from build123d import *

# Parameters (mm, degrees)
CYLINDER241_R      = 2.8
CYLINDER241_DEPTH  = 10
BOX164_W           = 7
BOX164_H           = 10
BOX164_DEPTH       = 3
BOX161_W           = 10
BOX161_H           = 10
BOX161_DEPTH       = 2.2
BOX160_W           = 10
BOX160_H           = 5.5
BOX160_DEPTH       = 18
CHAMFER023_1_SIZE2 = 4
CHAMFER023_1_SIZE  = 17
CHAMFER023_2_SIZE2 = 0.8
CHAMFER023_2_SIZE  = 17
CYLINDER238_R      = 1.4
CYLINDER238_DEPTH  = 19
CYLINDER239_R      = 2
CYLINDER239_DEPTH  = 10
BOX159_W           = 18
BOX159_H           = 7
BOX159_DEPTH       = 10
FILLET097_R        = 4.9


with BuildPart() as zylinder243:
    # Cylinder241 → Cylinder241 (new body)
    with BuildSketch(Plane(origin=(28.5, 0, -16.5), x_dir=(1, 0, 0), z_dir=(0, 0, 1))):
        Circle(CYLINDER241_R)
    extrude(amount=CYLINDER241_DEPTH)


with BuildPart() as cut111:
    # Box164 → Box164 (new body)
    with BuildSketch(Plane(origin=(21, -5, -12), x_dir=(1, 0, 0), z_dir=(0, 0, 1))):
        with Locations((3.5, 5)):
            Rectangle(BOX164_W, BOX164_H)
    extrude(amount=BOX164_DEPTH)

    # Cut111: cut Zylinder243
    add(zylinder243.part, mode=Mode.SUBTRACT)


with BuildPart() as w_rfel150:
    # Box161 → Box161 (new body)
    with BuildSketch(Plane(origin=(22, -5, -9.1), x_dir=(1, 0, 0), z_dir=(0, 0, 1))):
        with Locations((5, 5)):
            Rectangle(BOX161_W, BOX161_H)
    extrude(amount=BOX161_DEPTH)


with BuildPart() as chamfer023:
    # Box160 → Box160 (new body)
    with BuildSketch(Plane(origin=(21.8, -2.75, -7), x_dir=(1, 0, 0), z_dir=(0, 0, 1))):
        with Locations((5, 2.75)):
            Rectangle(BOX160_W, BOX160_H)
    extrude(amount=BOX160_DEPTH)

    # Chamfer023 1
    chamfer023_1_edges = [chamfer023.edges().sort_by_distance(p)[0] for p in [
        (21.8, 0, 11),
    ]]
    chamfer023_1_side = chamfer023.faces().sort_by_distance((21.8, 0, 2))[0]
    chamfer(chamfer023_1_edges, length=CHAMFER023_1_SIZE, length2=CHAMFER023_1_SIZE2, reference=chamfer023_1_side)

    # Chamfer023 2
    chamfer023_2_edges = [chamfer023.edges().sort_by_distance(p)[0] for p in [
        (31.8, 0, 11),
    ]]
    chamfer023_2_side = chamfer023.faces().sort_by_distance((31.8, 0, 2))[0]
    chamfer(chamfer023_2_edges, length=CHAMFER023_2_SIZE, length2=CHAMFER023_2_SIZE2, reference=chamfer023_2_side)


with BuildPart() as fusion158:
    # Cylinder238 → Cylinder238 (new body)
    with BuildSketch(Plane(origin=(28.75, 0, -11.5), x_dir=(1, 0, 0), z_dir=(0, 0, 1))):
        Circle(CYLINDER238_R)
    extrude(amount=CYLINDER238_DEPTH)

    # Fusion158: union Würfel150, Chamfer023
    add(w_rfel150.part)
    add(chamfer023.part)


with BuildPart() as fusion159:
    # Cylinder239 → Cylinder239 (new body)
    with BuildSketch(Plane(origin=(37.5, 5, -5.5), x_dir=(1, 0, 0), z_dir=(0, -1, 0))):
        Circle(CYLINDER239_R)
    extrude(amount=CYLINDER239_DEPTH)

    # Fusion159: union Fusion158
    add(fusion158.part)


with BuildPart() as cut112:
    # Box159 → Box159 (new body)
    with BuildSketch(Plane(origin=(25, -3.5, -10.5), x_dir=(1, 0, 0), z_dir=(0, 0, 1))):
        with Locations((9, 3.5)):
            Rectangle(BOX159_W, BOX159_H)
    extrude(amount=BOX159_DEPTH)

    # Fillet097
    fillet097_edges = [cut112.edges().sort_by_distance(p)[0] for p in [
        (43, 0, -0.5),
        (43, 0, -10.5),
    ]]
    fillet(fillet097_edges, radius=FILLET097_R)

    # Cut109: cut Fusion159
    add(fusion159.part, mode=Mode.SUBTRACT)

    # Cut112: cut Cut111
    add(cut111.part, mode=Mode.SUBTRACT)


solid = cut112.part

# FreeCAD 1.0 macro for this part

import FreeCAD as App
import Part
import Sketcher
from FreeCAD import Vector


def edges_at(feature, points):
    """Names of the edges that pass closest to the given points."""
    edges = feature.Shape.Edges
    near = lambda p: min(range(len(edges)), key=lambda i: edges[i].distToShape(Part.Vertex(*p))[0])
    return sorted({f"Edge{near(p) + 1}" for p in points})


def add_polygon(sketch, points):
    """Adds a closed chain of lines whose ends are joined by coincident constraints."""
    first, n = sketch.GeometryCount, len(points)
    for a, b in zip(points, points[1:] + points[:1]):
        sketch.addGeometry(Part.LineSegment(App.Vector(*a, 0), App.Vector(*b, 0)), False)
    for i in range(n):
        sketch.addConstraint(Sketcher.Constraint("Coincident", first + i, 2, first + (i + 1) % n, 1))

doc = App.newDocument("Part")
body = doc.addObject("PartDesign::Body", "Body")

# Sketch on XY plane
sketch1 = doc.addObject("Sketcher::SketchObject", "Sketch")
body.addObject(sketch1)
sketch1.AttachmentSupport = (doc.XY_Plane, [""])
sketch1.MapMode = "FlatFace"
sketch1.AttachmentOffset = App.Placement(Vector(0, 0, -16.5), App.Rotation())
sketch1.addGeometry(Part.Circle(Vector(28.5, 0, 0), Vector(0, 0, 1), 2.8), False)
sketch1.addConstraint(Sketcher.Constraint("PointOnObject", 0, 3, -1))
sketch1.addConstraint(Sketcher.Constraint("Diameter", 0, 5.6))
sketch1.addConstraint(Sketcher.Constraint("DistanceX", -1, 1, 0, 3, 28.5))
pad1 = doc.addObject("PartDesign::Pad", "Pad")
body.addObject(pad1)
pad1.Profile = sketch1
pad1.Length = 10
body2 = doc.addObject("PartDesign::Body", "Body001")

# Sketch on XY plane
sketch2 = doc.addObject("Sketcher::SketchObject", "Sketch001")
body2.addObject(sketch2)
sketch2.AttachmentSupport = (doc.getObject("XY_Plane001"), [""])
sketch2.MapMode = "FlatFace"
sketch2.AttachmentOffset = App.Placement(Vector(0, 0, -12), App.Rotation())
add_polygon(sketch2, [(21, 5), (21, -5), (28, -5), (28, 5)])  # lines 0-3
sketch2.addConstraint(Sketcher.Constraint("Vertical", 0))
sketch2.addConstraint(Sketcher.Constraint("Horizontal", 1))
sketch2.addConstraint(Sketcher.Constraint("Vertical", 2))
sketch2.addConstraint(Sketcher.Constraint("Horizontal", 3))
sketch2.addConstraint(Sketcher.Constraint("DistanceX", 1, 1, 1, 2, 7.0))
sketch2.addConstraint(Sketcher.Constraint("DistanceY", 0, 2, 0, 1, 10.0))
sketch2.addConstraint(Sketcher.Constraint("DistanceX", -1, 1, 0, 2, 21.0))
sketch2.addConstraint(Sketcher.Constraint("DistanceY", 0, 2, -1, 1, 5.0))
pad2 = doc.addObject("PartDesign::Pad", "Pad001")
body2.addObject(pad2)
pad2.Profile = sketch2
pad2.Length = 3
doc.recompute()

boolean = doc.addObject("PartDesign::Boolean", "Boolean")
body2.addObject(boolean)
boolean.Type = "Cut"
boolean.addObjects([body])
body3 = doc.addObject("PartDesign::Body", "Body002")

# Sketch on XY plane
sketch3 = doc.addObject("Sketcher::SketchObject", "Sketch002")
body3.addObject(sketch3)
sketch3.AttachmentSupport = (doc.getObject("XY_Plane002"), [""])
sketch3.MapMode = "FlatFace"
sketch3.AttachmentOffset = App.Placement(Vector(0, 0, -9.1), App.Rotation())
add_polygon(sketch3, [(22, 5), (22, -5), (32, -5), (32, 5)])  # lines 0-3
sketch3.addConstraint(Sketcher.Constraint("Vertical", 0))
sketch3.addConstraint(Sketcher.Constraint("Horizontal", 1))
sketch3.addConstraint(Sketcher.Constraint("Vertical", 2))
sketch3.addConstraint(Sketcher.Constraint("Horizontal", 3))
sketch3.addConstraint(Sketcher.Constraint("Equal", 3, 0))
sketch3.addConstraint(Sketcher.Constraint("DistanceX", 1, 1, 1, 2, 10.0))
sketch3.addConstraint(Sketcher.Constraint("DistanceX", -1, 1, 0, 2, 22.0))
sketch3.addConstraint(Sketcher.Constraint("DistanceY", 0, 2, -1, 1, 5.0))
pad3 = doc.addObject("PartDesign::Pad", "Pad002")
body3.addObject(pad3)
pad3.Profile = sketch3
pad3.Length = 2.2
body4 = doc.addObject("PartDesign::Body", "Body003")

# Sketch on XY plane
sketch4 = doc.addObject("Sketcher::SketchObject", "Sketch003")
body4.addObject(sketch4)
sketch4.AttachmentSupport = (doc.getObject("XY_Plane003"), [""])
sketch4.MapMode = "FlatFace"
sketch4.AttachmentOffset = App.Placement(Vector(0, 0, -7), App.Rotation())
add_polygon(sketch4, [(21.8, 2.75), (21.8, -2.75), (31.8, -2.75), (31.8, 2.75)])  # lines 0-3
sketch4.addConstraint(Sketcher.Constraint("Vertical", 0))
sketch4.addConstraint(Sketcher.Constraint("Horizontal", 1))
sketch4.addConstraint(Sketcher.Constraint("Vertical", 2))
sketch4.addConstraint(Sketcher.Constraint("Horizontal", 3))
sketch4.addConstraint(Sketcher.Constraint("DistanceX", 1, 1, 1, 2, 10.0))
sketch4.addConstraint(Sketcher.Constraint("DistanceY", 0, 2, 0, 1, 5.5))
sketch4.addConstraint(Sketcher.Constraint("DistanceX", -1, 1, 0, 2, 21.8))
sketch4.addConstraint(Sketcher.Constraint("DistanceY", 0, 2, -1, 1, 2.75))
pad4 = doc.addObject("PartDesign::Pad", "Pad003")
body4.addObject(pad4)
pad4.Profile = sketch4
pad4.Length = 18
doc.recompute()

chamfer = doc.addObject("PartDesign::Chamfer", "Chamfer")
body4.addObject(chamfer)
chamfer.Base = (pad4, edges_at(pad4, [(21.8, 0, 11)]))
chamfer.ChamferType = "Two distances"
chamfer.Size = 17
chamfer.Size2 = 4
doc.recompute()

chamfer2 = doc.addObject("PartDesign::Chamfer", "Chamfer001")
body4.addObject(chamfer2)
chamfer2.Base = (chamfer, edges_at(chamfer, [(31.8, 0, 11)]))
chamfer2.ChamferType = "Two distances"
chamfer2.Size = 17
chamfer2.Size2 = 0.8
chamfer2.FlipDirection = True
body5 = doc.addObject("PartDesign::Body", "Body004")

# Sketch on XY plane
sketch5 = doc.addObject("Sketcher::SketchObject", "Sketch004")
body5.addObject(sketch5)
sketch5.AttachmentSupport = (doc.getObject("XY_Plane004"), [""])
sketch5.MapMode = "FlatFace"
sketch5.AttachmentOffset = App.Placement(Vector(0, 0, -11.5), App.Rotation())
sketch5.addGeometry(Part.Circle(Vector(28.75, 0, 0), Vector(0, 0, 1), 1.4), False)
sketch5.addConstraint(Sketcher.Constraint("PointOnObject", 0, 3, -1))
sketch5.addConstraint(Sketcher.Constraint("Diameter", 0, 2.8))
sketch5.addConstraint(Sketcher.Constraint("DistanceX", -1, 1, 0, 3, 28.75))
pad5 = doc.addObject("PartDesign::Pad", "Pad004")
body5.addObject(pad5)
pad5.Profile = sketch5
pad5.Length = 19
doc.recompute()

boolean2 = doc.addObject("PartDesign::Boolean", "Boolean001")
body5.addObject(boolean2)
boolean2.Type = "Fuse"
boolean2.addObjects([body3])
doc.recompute()

boolean3 = doc.addObject("PartDesign::Boolean", "Boolean002")
body5.addObject(boolean3)
boolean3.Type = "Fuse"
boolean3.addObjects([body4])
body6 = doc.addObject("PartDesign::Body", "Body005")
body6.AllowCompound = True

# Sketch on XZ plane
sketch6 = doc.addObject("Sketcher::SketchObject", "Sketch005")
body6.addObject(sketch6)
sketch6.AttachmentSupport = (doc.getObject("XZ_Plane005"), [""])
sketch6.MapMode = "FlatFace"
sketch6.AttachmentOffset = App.Placement(Vector(0, 0, -5), App.Rotation())
sketch6.addGeometry(Part.Circle(Vector(37.5, -5.5, 0), Vector(0, 0, 1), 2), False)
sketch6.addConstraint(Sketcher.Constraint("Diameter", 0, 4.0))
sketch6.addConstraint(Sketcher.Constraint("DistanceX", -1, 1, 0, 3, 37.5))
sketch6.addConstraint(Sketcher.Constraint("DistanceY", 0, 3, -1, 1, 5.5))
pad6 = doc.addObject("PartDesign::Pad", "Pad005")
body6.addObject(pad6)
pad6.Profile = sketch6
pad6.Length = 10
doc.recompute()

boolean4 = doc.addObject("PartDesign::Boolean", "Boolean003")
body6.addObject(boolean4)
boolean4.Type = "Fuse"
boolean4.addObjects([body5])
body7 = doc.addObject("PartDesign::Body", "Body006")

# Sketch on XY plane
sketch7 = doc.addObject("Sketcher::SketchObject", "Sketch006")
body7.addObject(sketch7)
sketch7.AttachmentSupport = (doc.getObject("XY_Plane006"), [""])
sketch7.MapMode = "FlatFace"
sketch7.AttachmentOffset = App.Placement(Vector(0, 0, -10.5), App.Rotation())
add_polygon(sketch7, [(25, 3.5), (25, -3.5), (43, -3.5), (43, 3.5)])  # lines 0-3
sketch7.addConstraint(Sketcher.Constraint("Vertical", 0))
sketch7.addConstraint(Sketcher.Constraint("Horizontal", 1))
sketch7.addConstraint(Sketcher.Constraint("Vertical", 2))
sketch7.addConstraint(Sketcher.Constraint("Horizontal", 3))
sketch7.addConstraint(Sketcher.Constraint("DistanceX", 1, 1, 1, 2, 18.0))
sketch7.addConstraint(Sketcher.Constraint("DistanceY", 0, 2, 0, 1, 7.0))
sketch7.addConstraint(Sketcher.Constraint("DistanceX", -1, 1, 0, 2, 25.0))
sketch7.addConstraint(Sketcher.Constraint("DistanceY", 0, 2, -1, 1, 3.5))
pad7 = doc.addObject("PartDesign::Pad", "Pad006")
body7.addObject(pad7)
pad7.Profile = sketch7
pad7.Length = 10
doc.recompute()

fillet = doc.addObject("PartDesign::Fillet", "Fillet")
body7.addObject(fillet)
fillet.Base = (pad7, edges_at(pad7, [(43, 0, -0.5), (43, 0, -10.5)]))
fillet.Radius = 4.9
doc.recompute()

boolean5 = doc.addObject("PartDesign::Boolean", "Boolean004")
body7.addObject(boolean5)
boolean5.Type = "Cut"
boolean5.addObjects([body6])
doc.recompute()

boolean6 = doc.addObject("PartDesign::Boolean", "Boolean005")
body7.addObject(boolean6)
boolean6.Type = "Cut"
boolean6.addObjects([body2])

doc.recompute()
